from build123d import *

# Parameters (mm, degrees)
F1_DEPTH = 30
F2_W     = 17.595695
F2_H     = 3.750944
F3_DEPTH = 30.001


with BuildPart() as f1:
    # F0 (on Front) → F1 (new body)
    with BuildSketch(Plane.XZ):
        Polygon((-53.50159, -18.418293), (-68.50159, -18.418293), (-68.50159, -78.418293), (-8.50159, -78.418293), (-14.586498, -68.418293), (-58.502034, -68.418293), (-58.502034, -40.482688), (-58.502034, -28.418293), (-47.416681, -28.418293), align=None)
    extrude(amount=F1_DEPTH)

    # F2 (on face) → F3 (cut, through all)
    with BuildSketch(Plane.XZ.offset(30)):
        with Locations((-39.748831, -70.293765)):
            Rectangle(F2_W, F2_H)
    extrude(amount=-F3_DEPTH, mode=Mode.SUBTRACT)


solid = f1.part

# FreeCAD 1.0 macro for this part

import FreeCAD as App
import Part
import Sketcher

V = App.Vector
Q = App.Units.Quantity


def add_polygon(sketch, points):
    """Adds a closed chain of lines whose ends are joined by coincident constraints."""
    first, n = sketch.GeometryCount, len(points)
    for a, b in zip(points, points[1:] + points[:1]):
        sketch.addGeometry(Part.LineSegment(App.Vector(*a, 0), App.Vector(*b, 0)), False)
    for i in range(n):
        sketch.addConstraint(Sketcher.Constraint("Coincident", first + i, 2, first + (i + 1) % n, 1))

doc = App.newDocument("Part")
body = doc.addObject("PartDesign::Body", "Body")

# Sketch on XZ plane
sketch1 = doc.addObject("Sketcher::SketchObject", "Sketch")
body.addObject(sketch1)
sketch1.AttachmentSupport = (doc.XZ_Plane, [""])
sketch1.MapMode = "FlatFace"
add_polygon(sketch1, [(-53.50159, -18.418293), (-68.50159, -18.418293), (-68.50159, -78.418293), (-8.50159, -78.418293), (-14.586498, -68.418293), (-58.502034, -68.418293), (-58.502034, -28.418293), (-47.416681, -28.418293)])  # lines 0-7
sketch1.addConstraint([
    Sketcher.Constraint("Horizontal", 0),
    Sketcher.Constraint("Vertical", 1),
    Sketcher.Constraint("Horizontal", 2),
    Sketcher.Constraint("Horizontal", 4),
    Sketcher.Constraint("Vertical", 5),
    Sketcher.Constraint("Horizontal", 6),
    Sketcher.Constraint("Parallel", 3, 7),
    Sketcher.Constraint("Equal", 2, 1),
    Sketcher.Constraint("Equal", 3, 7),
    Sketcher.Constraint("DistanceX", 0, 2, 0, 1, Q("15 mm")),
    Sketcher.Constraint("DistanceX", 2, 1, 2, 2, Q("60 mm")),
    Sketcher.Constraint("DistanceY", 5, 1, 5, 2, Q("40 mm")),
    Sketcher.Constraint("DistanceX", 3, 2, -1, 1, Q("14.586498 mm")),
    Sketcher.Constraint("DistanceX", 4, 2, 4, 1, Q("43.915536 mm")),
    Sketcher.Constraint("DistanceX", 6, 1, 6, 2, Q("11.085353 mm")),
    Sketcher.Constraint("DistanceY", 0, 2, -1, 1, Q("18.418293 mm")),
])
pad1 = doc.addObject("PartDesign::Pad", "Pad")
body.addObject(pad1)
pad1.Profile = sketch1
pad1.Length = 30

# Sketch on XZ plane
sketch2 = doc.addObject("Sketcher::SketchObject", "Sketch001")
body.addObject(sketch2)
sketch2.AttachmentSupport = (doc.XZ_Plane, [""])
sketch2.MapMode = "FlatFace"
sketch2.AttachmentOffset = App.Placement(V(0, 0, 30), App.Rotation())
add_polygon(sketch2, [(-48.546678, -68.418293), (-48.546678, -72.169237), (-30.950983, -72.169237), (-30.950983, -68.418293)])  # lines 0-3
sketch2.addConstraint([
    Sketcher.Constraint("Vertical", 0),
    Sketcher.Constraint("Horizontal", 1),
    Sketcher.Constraint("Vertical", 2),
    Sketcher.Constraint("Horizontal", 3),
    Sketcher.Constraint("DistanceX", 1, 1, 1, 2, Q("17.595695 mm")),
    Sketcher.Constraint("DistanceY", 0, 2, 0, 1, Q("3.750944 mm")),
    Sketcher.Constraint("DistanceX", 0, 2, -1, 1, Q("48.546678 mm")),
    Sketcher.Constraint("DistanceY", 0, 2, -1, 1, Q("72.169237 mm")),
])
pocket1 = doc.addObject("PartDesign::Pocket", "Pocket")
body.addObject(pocket1)
pocket1.Profile = sketch2
pocket1.Type = "ThroughAll"

doc.recompute()
